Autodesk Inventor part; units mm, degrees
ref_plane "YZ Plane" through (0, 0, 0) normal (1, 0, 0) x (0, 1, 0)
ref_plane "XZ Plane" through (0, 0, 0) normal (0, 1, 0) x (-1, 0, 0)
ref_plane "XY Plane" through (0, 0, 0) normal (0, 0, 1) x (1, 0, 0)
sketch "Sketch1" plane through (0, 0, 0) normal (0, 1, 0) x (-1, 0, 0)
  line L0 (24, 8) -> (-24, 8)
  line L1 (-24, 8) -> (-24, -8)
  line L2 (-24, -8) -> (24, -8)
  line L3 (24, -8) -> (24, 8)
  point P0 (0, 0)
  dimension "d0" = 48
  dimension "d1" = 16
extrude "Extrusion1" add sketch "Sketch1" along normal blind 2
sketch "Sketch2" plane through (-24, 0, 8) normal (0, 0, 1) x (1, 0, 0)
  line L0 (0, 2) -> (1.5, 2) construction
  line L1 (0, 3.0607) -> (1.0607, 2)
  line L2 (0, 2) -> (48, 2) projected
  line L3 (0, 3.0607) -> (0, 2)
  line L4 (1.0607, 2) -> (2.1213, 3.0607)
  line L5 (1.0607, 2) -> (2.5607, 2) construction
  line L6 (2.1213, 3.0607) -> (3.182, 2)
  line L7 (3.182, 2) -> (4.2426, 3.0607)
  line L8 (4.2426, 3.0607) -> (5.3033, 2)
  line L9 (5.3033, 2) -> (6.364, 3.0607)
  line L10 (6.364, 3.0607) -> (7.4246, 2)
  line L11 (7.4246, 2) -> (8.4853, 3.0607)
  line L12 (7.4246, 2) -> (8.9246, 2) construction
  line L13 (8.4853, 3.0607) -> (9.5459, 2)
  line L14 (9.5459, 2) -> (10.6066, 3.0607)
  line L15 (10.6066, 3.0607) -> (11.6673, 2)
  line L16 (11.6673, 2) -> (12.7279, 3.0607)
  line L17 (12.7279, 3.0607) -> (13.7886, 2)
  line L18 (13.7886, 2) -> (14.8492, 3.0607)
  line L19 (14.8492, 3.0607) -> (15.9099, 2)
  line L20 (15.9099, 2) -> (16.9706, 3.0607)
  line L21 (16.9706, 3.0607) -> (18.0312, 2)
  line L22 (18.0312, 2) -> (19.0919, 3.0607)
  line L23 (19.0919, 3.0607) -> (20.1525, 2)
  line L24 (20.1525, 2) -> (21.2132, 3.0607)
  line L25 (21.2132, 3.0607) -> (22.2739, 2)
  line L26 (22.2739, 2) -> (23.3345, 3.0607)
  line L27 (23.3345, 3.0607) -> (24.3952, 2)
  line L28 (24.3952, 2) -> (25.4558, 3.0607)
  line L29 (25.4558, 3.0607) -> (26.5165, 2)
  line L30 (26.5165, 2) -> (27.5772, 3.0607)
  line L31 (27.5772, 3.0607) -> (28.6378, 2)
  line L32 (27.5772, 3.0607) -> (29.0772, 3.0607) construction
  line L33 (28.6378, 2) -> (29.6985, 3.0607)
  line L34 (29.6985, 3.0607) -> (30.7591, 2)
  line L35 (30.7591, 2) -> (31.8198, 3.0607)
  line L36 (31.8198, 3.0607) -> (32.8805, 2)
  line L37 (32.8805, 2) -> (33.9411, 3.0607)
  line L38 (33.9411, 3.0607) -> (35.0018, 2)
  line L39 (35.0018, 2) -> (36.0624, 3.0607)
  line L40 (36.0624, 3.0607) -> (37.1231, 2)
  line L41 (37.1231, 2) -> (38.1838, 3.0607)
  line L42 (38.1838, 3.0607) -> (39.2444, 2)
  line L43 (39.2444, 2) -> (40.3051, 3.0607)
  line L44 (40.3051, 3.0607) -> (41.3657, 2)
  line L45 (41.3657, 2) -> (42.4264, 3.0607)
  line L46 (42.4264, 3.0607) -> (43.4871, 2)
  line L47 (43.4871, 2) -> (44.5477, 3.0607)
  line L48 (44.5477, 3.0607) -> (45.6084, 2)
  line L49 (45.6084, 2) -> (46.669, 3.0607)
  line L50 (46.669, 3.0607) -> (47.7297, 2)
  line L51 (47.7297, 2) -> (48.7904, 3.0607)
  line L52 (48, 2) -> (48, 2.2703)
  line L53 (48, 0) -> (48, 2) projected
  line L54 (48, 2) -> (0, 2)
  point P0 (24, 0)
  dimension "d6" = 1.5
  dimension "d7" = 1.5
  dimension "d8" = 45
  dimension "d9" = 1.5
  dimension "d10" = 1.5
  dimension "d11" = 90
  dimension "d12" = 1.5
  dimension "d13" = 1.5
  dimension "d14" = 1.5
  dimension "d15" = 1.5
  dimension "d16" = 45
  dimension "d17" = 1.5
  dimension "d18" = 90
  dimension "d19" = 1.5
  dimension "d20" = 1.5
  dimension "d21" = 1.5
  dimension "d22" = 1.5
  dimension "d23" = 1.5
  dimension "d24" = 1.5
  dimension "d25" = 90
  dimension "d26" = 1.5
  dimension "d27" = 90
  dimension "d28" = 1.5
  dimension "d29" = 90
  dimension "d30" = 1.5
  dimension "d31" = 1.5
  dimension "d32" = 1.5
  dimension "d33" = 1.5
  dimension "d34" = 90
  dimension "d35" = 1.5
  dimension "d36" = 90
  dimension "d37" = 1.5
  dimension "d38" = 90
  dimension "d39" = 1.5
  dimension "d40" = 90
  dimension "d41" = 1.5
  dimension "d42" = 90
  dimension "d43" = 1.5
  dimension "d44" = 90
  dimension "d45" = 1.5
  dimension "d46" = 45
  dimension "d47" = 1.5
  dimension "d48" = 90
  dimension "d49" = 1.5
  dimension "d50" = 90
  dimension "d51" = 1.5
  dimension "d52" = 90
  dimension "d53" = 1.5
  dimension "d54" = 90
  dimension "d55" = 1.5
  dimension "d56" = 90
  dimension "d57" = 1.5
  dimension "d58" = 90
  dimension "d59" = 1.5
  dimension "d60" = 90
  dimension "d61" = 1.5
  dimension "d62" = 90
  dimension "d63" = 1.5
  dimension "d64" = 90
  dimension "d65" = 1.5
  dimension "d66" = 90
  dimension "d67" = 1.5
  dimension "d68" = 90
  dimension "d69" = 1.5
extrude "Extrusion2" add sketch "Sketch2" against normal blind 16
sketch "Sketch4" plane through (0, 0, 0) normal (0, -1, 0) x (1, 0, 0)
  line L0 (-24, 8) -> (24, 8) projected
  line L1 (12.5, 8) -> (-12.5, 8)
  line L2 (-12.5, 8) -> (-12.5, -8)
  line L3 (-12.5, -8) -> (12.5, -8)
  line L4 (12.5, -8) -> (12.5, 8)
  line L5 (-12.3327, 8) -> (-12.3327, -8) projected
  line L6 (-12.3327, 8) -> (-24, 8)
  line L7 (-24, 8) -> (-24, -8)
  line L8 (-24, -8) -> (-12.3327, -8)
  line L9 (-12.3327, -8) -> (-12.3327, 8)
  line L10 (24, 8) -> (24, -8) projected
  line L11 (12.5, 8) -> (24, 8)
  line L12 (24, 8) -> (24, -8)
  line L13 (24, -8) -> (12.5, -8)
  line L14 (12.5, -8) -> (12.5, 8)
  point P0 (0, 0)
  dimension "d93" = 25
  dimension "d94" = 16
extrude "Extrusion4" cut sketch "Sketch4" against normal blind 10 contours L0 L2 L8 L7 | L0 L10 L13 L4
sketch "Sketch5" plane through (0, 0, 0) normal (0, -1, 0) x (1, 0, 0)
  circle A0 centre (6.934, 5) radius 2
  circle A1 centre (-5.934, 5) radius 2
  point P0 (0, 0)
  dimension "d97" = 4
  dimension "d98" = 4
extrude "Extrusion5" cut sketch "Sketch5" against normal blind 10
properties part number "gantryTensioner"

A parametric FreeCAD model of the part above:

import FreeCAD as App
import Part
import Sketcher

V = App.Vector

doc = App.newDocument("Part")
body = doc.addObject("PartDesign::Body", "Body")

# Sketch on XZ plane
sketch1 = body.newObject("Sketcher::SketchObject", "Sketch")
sketch1.AttachmentSupport = (doc.getObject("XZ_Plane"), [""])
sketch1.MapMode = "FlatFace"
sketch1.addGeometry(Part.LineSegment(V(-24, -8, 0), V(-24, 8, 0)), False)
sketch1.addGeometry(Part.LineSegment(V(-24, 8, 0), V(24, 8, 0)), False)
sketch1.addGeometry(Part.LineSegment(V(24, 8, 0), V(24, -8, 0)), False)
sketch1.addGeometry(Part.LineSegment(V(24, -8, 0), V(-24, -8, 0)), False)
sketch1.addConstraint(Sketcher.Constraint("Coincident", 0, 2, 1, 1))
sketch1.addConstraint(Sketcher.Constraint("Coincident", 1, 2, 2, 1))
sketch1.addConstraint(Sketcher.Constraint("Coincident", 2, 2, 3, 1))
sketch1.addConstraint(Sketcher.Constraint("Coincident", 3, 2, 0, 1))
sketch1.addConstraint(Sketcher.Constraint("Vertical", 0))
sketch1.addConstraint(Sketcher.Constraint("Horizontal", 1))
sketch1.addConstraint(Sketcher.Constraint("Vertical", 2))
sketch1.addConstraint(Sketcher.Constraint("Horizontal", 3))
sketch1.addConstraint(Sketcher.Constraint("Symmetric", 0, 2, 2, 2, -1, 1))
sketch1.addConstraint(Sketcher.Constraint("DistanceX", 1, 1, 1, 2, 48.0))
sketch1.addConstraint(Sketcher.Constraint("DistanceY", 0, 1, 0, 2, 16.0))
pad1 = body.newObject("PartDesign::Pad", "Pad")
pad1.Profile = sketch1
pad1.Length = 2
pad1.Reversed = True

# Sketch on XY plane
sketch2 = body.newObject("Sketcher::SketchObject", "Sketch001")
sketch2.AttachmentSupport = (doc.getObject("XY_Plane"), [""])
sketch2.MapMode = "FlatFace"
sketch2.AttachmentOffset = App.Placement(V(0, 0, 8), App.Rotation())
sketch2.addGeometry(Part.LineSegment(V(24, 2.2703, 0), V(23.7297, 2, 0)), False)
sketch2.addGeometry(Part.LineSegment(V(23.7297, 2, 0), V(24, 2, 0)), False)
sketch2.addGeometry(Part.LineSegment(V(24, 2, 0), V(24, 2.2703, 0)), False)
sketch2.addGeometry(Part.LineSegment(V(22.669, 3.0607, 0), V(21.6084, 2, 0)), False)
sketch2.addGeometry(Part.LineSegment(V(21.6084, 2, 0), V(23.7297, 2, 0)), False)
sketch2.addGeometry(Part.LineSegment(V(23.7297, 2, 0), V(22.669, 3.0607, 0)), False)
sketch2.addGeometry(Part.LineSegment(V(20.5477, 3.0607, 0), V(19.4871, 2, 0)), False)
sketch2.addGeometry(Part.LineSegment(V(19.4871, 2, 0), V(21.6084, 2, 0)), False)
sketch2.addGeometry(Part.LineSegment(V(21.6084, 2, 0), V(20.5477, 3.0607, 0)), False)
sketch2.addGeometry(Part.LineSegment(V(18.4264, 3.0607, 0), V(17.3657, 2, 0)), False)
sketch2.addGeometry(Part.LineSegment(V(17.3657, 2, 0), V(19.4871, 2, 0)), False)
sketch2.addGeometry(Part.LineSegment(V(19.4871, 2, 0), V(18.4264, 3.0607, 0)), False)
sketch2.addGeometry(Part.LineSegment(V(16.3051, 3.0607, 0), V(15.2444, 2, 0)), False)
sketch2.addGeometry(Part.LineSegment(V(15.2444, 2, 0), V(17.3657, 2, 0)), False)
sketch2.addGeometry(Part.LineSegment(V(17.3657, 2, 0), V(16.3051, 3.0607, 0)), False)
sketch2.addGeometry(Part.LineSegment(V(14.1838, 3.0607, 0), V(13.1231, 2, 0)), False)
sketch2.addGeometry(Part.LineSegment(V(13.1231, 2, 0), V(15.2444, 2, 0)), False)
sketch2.addGeometry(Part.LineSegment(V(15.2444, 2, 0), V(14.1838, 3.0607, 0)), False)
sketch2.addGeometry(Part.LineSegment(V(12.0624, 3.0607, 0), V(11.0018, 2, 0)), False)
sketch2.addGeometry(Part.LineSegment(V(11.0018, 2, 0), V(13.1231, 2, 0)), False)
sketch2.addGeometry(Part.LineSegment(V(13.1231, 2, 0), V(12.0624, 3.0607, 0)), False)
sketch2.addGeometry(Part.LineSegment(V(9.9411, 3.0607, 0), V(8.8805, 2, 0)), False)
sketch2.addGeometry(Part.LineSegment(V(8.8805, 2, 0), V(11.0018, 2, 0)), False)
sketch2.addGeometry(Part.LineSegment(V(11.0018, 2, 0), V(9.9411, 3.0607, 0)), False)
sketch2.addGeometry(Part.LineSegment(V(7.8198, 3.0607, 0), V(6.7591, 2, 0)), False)
sketch2.addGeometry(Part.LineSegment(V(6.7591, 2, 0), V(8.8805, 2, 0)), False)
sketch2.addGeometry(Part.LineSegment(V(8.8805, 2, 0), V(7.8198, 3.0607, 0)), False)
sketch2.addGeometry(Part.LineSegment(V(5.6985, 3.0607, 0), V(4.6378, 2, 0)), False)
sketch2.addGeometry(Part.LineSegment(V(4.6378, 2, 0), V(6.7591, 2, 0)), False)
sketch2.addGeometry(Part.LineSegment(V(6.7591, 2, 0), V(5.6985, 3.0607, 0)), False)
sketch2.addGeometry(Part.LineSegment(V(3.5772, 3.0607, 0), V(2.5165, 2, 0)), False)
sketch2.addGeometry(Part.LineSegment(V(2.5165, 2, 0), V(4.6378, 2, 0)), False)
sketch2.addGeometry(Part.LineSegment(V(4.6378, 2, 0), V(3.5772, 3.0607, 0)), False)
sketch2.addGeometry(Part.LineSegment(V(1.4558, 3.0607, 0), V(0.3952, 2, 0)), False)
sketch2.addGeometry(Part.LineSegment(V(0.3952, 2, 0), V(2.5165, 2, 0)), False)
sketch2.addGeometry(Part.LineSegment(V(2.5165, 2, 0), V(1.4558, 3.0607, 0)), False)
sketch2.addGeometry(Part.LineSegment(V(-0.6655, 3.0607, 0), V(-1.7261, 2, 0)), False)
sketch2.addGeometry(Part.LineSegment(V(-1.7261, 2, 0), V(0.3952, 2, 0)), False)
sketch2.addGeometry(Part.LineSegment(V(0.3952, 2, 0), V(-0.6655, 3.0607, 0)), False)
sketch2.addGeometry(Part.LineSegment(V(-2.7868, 3.0607, 0), V(-3.8475, 2, 0)), False)
sketch2.addGeometry(Part.LineSegment(V(-3.8475, 2, 0), V(-1.7261, 2, 0)), False)
sketch2.addGeometry(Part.LineSegment(V(-1.7261, 2, 0), V(-2.7868, 3.0607, 0)), False)
sketch2.addGeometry(Part.LineSegment(V(-4.9081, 3.0607, 0), V(-5.9688, 2, 0)), False)
sketch2.addGeometry(Part.LineSegment(V(-5.9688, 2, 0), V(-3.8475, 2, 0)), False)
sketch2.addGeometry(Part.LineSegment(V(-3.8475, 2, 0), V(-4.9081, 3.0607, 0)), False)
sketch2.addGeometry(Part.LineSegment(V(-7.0294, 3.0607, 0), V(-8.0901, 2, 0)), False)
sketch2.addGeometry(Part.LineSegment(V(-8.0901, 2, 0), V(-5.9688, 2, 0)), False)
sketch2.addGeometry(Part.LineSegment(V(-5.9688, 2, 0), V(-7.0294, 3.0607, 0)), False)
sketch2.addGeometry(Part.LineSegment(V(-9.1508, 3.0607, 0), V(-10.2114, 2, 0)), False)
sketch2.addGeometry(Part.LineSegment(V(-10.2114, 2, 0), V(-8.0901, 2, 0)), False)
sketch2.addGeometry(Part.LineSegment(V(-8.0901, 2, 0), V(-9.1508, 3.0607, 0)), False)
sketch2.addGeometry(Part.LineSegment(V(-11.2721, 3.0607, 0), V(-12.3327, 2, 0)), False)
sketch2.addGeometry(Part.LineSegment(V(-12.3327, 2, 0), V(-10.2114, 2, 0)), False)
sketch2.addGeometry(Part.LineSegment(V(-10.2114, 2, 0), V(-11.2721, 3.0607, 0)), False)
sketch2.addGeometry(Part.LineSegment(V(-13.3934, 3.0607, 0), V(-14.4541, 2, 0)), False)
sketch2.addGeometry(Part.LineSegment(V(-14.4541, 2, 0), V(-12.3327, 2, 0)), False)
sketch2.addGeometry(Part.LineSegment(V(-12.3327, 2, 0), V(-13.3934, 3.0607, 0)), False)
sketch2.addGeometry(Part.LineSegment(V(-15.5147, 3.0607, 0), V(-16.5754, 2, 0)), False)
sketch2.addGeometry(Part.LineSegment(V(-16.5754, 2, 0), V(-14.4541, 2, 0)), False)
sketch2.addGeometry(Part.LineSegment(V(-14.4541, 2, 0), V(-15.5147, 3.0607, 0)), False)
sketch2.addGeometry(Part.LineSegment(V(-17.636, 3.0607, 0), V(-18.6967, 2, 0)), False)
sketch2.addGeometry(Part.LineSegment(V(-18.6967, 2, 0), V(-16.5754, 2, 0)), False)
sketch2.addGeometry(Part.LineSegment(V(-16.5754, 2, 0), V(-17.636, 3.0607, 0)), False)
sketch2.addGeometry(Part.LineSegment(V(-19.7574, 3.0607, 0), V(-20.818, 2, 0)), False)
sketch2.addGeometry(Part.LineSegment(V(-20.818, 2, 0), V(-18.6967, 2, 0)), False)
sketch2.addGeometry(Part.LineSegment(V(-18.6967, 2, 0), V(-19.7574, 3.0607, 0)), False)
sketch2.addGeometry(Part.LineSegment(V(-21.8787, 3.0607, 0), V(-22.9393, 2, 0)), False)
sketch2.addGeometry(Part.LineSegment(V(-22.9393, 2, 0), V(-20.818, 2, 0)), False)
sketch2.addGeometry(Part.LineSegment(V(-20.818, 2, 0), V(-21.8787, 3.0607, 0)), False)
sketch2.addGeometry(Part.LineSegment(V(-22.9393, 2, 0), V(-24, 3.0607, 0)), False)
sketch2.addGeometry(Part.LineSegment(V(-24, 3.0607, 0), V(-24, 2, 0)), False)
sketch2.addGeometry(Part.LineSegment(V(-24, 2, 0), V(-22.9393, 2, 0)), False)
sketch2.addConstraint(Sketcher.Constraint("Coincident", 0, 2, 1, 1))
sketch2.addConstraint(Sketcher.Constraint("Coincident", 1, 2, 2, 1))
sketch2.addConstraint(Sketcher.Constraint("Coincident", 2, 2, 0, 1))
sketch2.addConstraint(Sketcher.Constraint("Coincident", 3, 2, 4, 1))
sketch2.addConstraint(Sketcher.Constraint("Coincident", 4, 2, 5, 1))
sketch2.addConstraint(Sketcher.Constraint("Coincident", 5, 2, 3, 1))
sketch2.addConstraint(Sketcher.Constraint("Coincident", 6, 2, 7, 1))
sketch2.addConstraint(Sketcher.Constraint("Coincident", 7, 2, 8, 1))
sketch2.addConstraint(Sketcher.Constraint("Coincident", 8, 2, 6, 1))
sketch2.addConstraint(Sketcher.Constraint("Coincident", 9, 2, 10, 1))
sketch2.addConstraint(Sketcher.Constraint("Coincident", 10, 2, 11, 1))
sketch2.addConstraint(Sketcher.Constraint("Coincident", 11, 2, 9, 1))
sketch2.addConstraint(Sketcher.Constraint("Coincident", 12, 2, 13, 1))
sketch2.addConstraint(Sketcher.Constraint("Coincident", 13, 2, 14, 1))
sketch2.addConstraint(Sketcher.Constraint("Coincident", 14, 2, 12, 1))
sketch2.addConstraint(Sketcher.Constraint("Coincident", 15, 2, 16, 1))
sketch2.addConstraint(Sketcher.Constraint("Coincident", 16, 2, 17, 1))
sketch2.addConstraint(Sketcher.Constraint("Coincident", 17, 2, 15, 1))
sketch2.addConstraint(Sketcher.Constraint("Coincident", 18, 2, 19, 1))
sketch2.addConstraint(Sketcher.Constraint("Coincident", 19, 2, 20, 1))
sketch2.addConstraint(Sketcher.Constraint("Coincident", 20, 2, 18, 1))
sketch2.addConstraint(Sketcher.Constraint("Coincident", 21, 2, 22, 1))
sketch2.addConstraint(Sketcher.Constraint("Coincident", 22, 2, 23, 1))
sketch2.addConstraint(Sketcher.Constraint("Coincident", 23, 2, 21, 1))
sketch2.addConstraint(Sketcher.Constraint("Coincident", 24, 2, 25, 1))
sketch2.addConstraint(Sketcher.Constraint("Coincident", 25, 2, 26, 1))
sketch2.addConstraint(Sketcher.Constraint("Coincident", 26, 2, 24, 1))
sketch2.addConstraint(Sketcher.Constraint("Coincident", 27, 2, 28, 1))
sketch2.addConstraint(Sketcher.Constraint("Coincident", 28, 2, 29, 1))
sketch2.addConstraint(Sketcher.Constraint("Coincident", 29, 2, 27, 1))
sketch2.addConstraint(Sketcher.Constraint("Coincident", 30, 2, 31, 1))
sketch2.addConstraint(Sketcher.Constraint("Coincident", 31, 2, 32, 1))
sketch2.addConstraint(Sketcher.Constraint("Coincident", 32, 2, 30, 1))
sketch2.addConstraint(Sketcher.Constraint("Coincident", 33, 2, 34, 1))
sketch2.addConstraint(Sketcher.Constraint("Coincident", 34, 2, 35, 1))
sketch2.addConstraint(Sketcher.Constraint("Coincident", 35, 2, 33, 1))
sketch2.addConstraint(Sketcher.Constraint("Coincident", 36, 2, 37, 1))
sketch2.addConstraint(Sketcher.Constraint("Coincident", 37, 2, 38, 1))
sketch2.addConstraint(Sketcher.Constraint("Coincident", 38, 2, 36, 1))
sketch2.addConstraint(Sketcher.Constraint("Coincident", 39, 2, 40, 1))
sketch2.addConstraint(Sketcher.Constraint("Coincident", 40, 2, 41, 1))
sketch2.addConstraint(Sketcher.Constraint("Coincident", 41, 2, 39, 1))
sketch2.addConstraint(Sketcher.Constraint("Coincident", 42, 2, 43, 1))
sketch2.addConstraint(Sketcher.Constraint("Coincident", 43, 2, 44, 1))
sketch2.addConstraint(Sketcher.Constraint("Coincident", 44, 2, 42, 1))
sketch2.addConstraint(Sketcher.Constraint("Coincident", 45, 2, 46, 1))
sketch2.addConstraint(Sketcher.Constraint("Coincident", 46, 2, 47, 1))
sketch2.addConstraint(Sketcher.Constraint("Coincident", 47, 2, 45, 1))
sketch2.addConstraint(Sketcher.Constraint("Coincident", 48, 2, 49, 1))
sketch2.addConstraint(Sketcher.Constraint("Coincident", 49, 2, 50, 1))
sketch2.addConstraint(Sketcher.Constraint("Coincident", 50, 2, 48, 1))
sketch2.addConstraint(Sketcher.Constraint("Coincident", 51, 2, 52, 1))
sketch2.addConstraint(Sketcher.Constraint("Coincident", 52, 2, 53, 1))
sketch2.addConstraint(Sketcher.Constraint("Coincident", 53, 2, 51, 1))
sketch2.addConstraint(Sketcher.Constraint("Coincident", 54, 2, 55, 1))
sketch2.addConstraint(Sketcher.Constraint("Coincident", 55, 2, 56, 1))
sketch2.addConstraint(Sketcher.Constraint("Coincident", 56, 2, 54, 1))
sketch2.addConstraint(Sketcher.Constraint("Coincident", 57, 2, 58, 1))
sketch2.addConstraint(Sketcher.Constraint("Coincident", 58, 2, 59, 1))
sketch2.addConstraint(Sketcher.Constraint("Coincident", 59, 2, 57, 1))
sketch2.addConstraint(Sketcher.Constraint("Coincident", 60, 2, 61, 1))
sketch2.addConstraint(Sketcher.Constraint("Coincident", 61, 2, 62, 1))
sketch2.addConstraint(Sketcher.Constraint("Coincident", 62, 2, 60, 1))
sketch2.addConstraint(Sketcher.Constraint("Coincident", 63, 2, 64, 1))
sketch2.addConstraint(Sketcher.Constraint("Coincident", 64, 2, 65, 1))
sketch2.addConstraint(Sketcher.Constraint("Coincident", 65, 2, 63, 1))
sketch2.addConstraint(Sketcher.Constraint("Coincident", 66, 2, 67, 1))
sketch2.addConstraint(Sketcher.Constraint("Coincident", 67, 2, 68, 1))
sketch2.addConstraint(Sketcher.Constraint("Coincident", 68, 2, 66, 1))
sketch2.addConstraint(Sketcher.Constraint("Coincident", 69, 2, 70, 1))
sketch2.addConstraint(Sketcher.Constraint("Coincident", 70, 2, 71, 1))
sketch2.addConstraint(Sketcher.Constraint("Coincident", 71, 2, 69, 1))
sketch2.addConstraint(Sketcher.Constraint("Horizontal", 1))
sketch2.addConstraint(Sketcher.Constraint("Vertical", 2))
sketch2.addConstraint(Sketcher.Constraint("Horizontal", 4))
sketch2.addConstraint(Sketcher.Constraint("Horizontal", 7))
sketch2.addConstraint(Sketcher.Constraint("Horizontal", 10))
sketch2.addConstraint(Sketcher.Constraint("Horizontal", 13))
sketch2.addConstraint(Sketcher.Constraint("Horizontal", 16))
sketch2.addConstraint(Sketcher.Constraint("Horizontal", 19))
sketch2.addConstraint(Sketcher.Constraint("Horizontal", 22))
sketch2.addConstraint(Sketcher.Constraint("Horizontal", 25))
sketch2.addConstraint(Sketcher.Constraint("Horizontal", 28))
sketch2.addConstraint(Sketcher.Constraint("Horizontal", 31))
sketch2.addConstraint(Sketcher.Constraint("Horizontal", 34))
sketch2.addConstraint(Sketcher.Constraint("Horizontal", 37))
sketch2.addConstraint(Sketcher.Constraint("Horizontal", 40))
sketch2.addConstraint(Sketcher.Constraint("Horizontal", 43))
sketch2.addConstraint(Sketcher.Constraint("Horizontal", 46))
sketch2.addConstraint(Sketcher.Constraint("Horizontal", 49))
sketch2.addConstraint(Sketcher.Constraint("Horizontal", 52))
sketch2.addConstraint(Sketcher.Constraint("Horizontal", 55))
sketch2.addConstraint(Sketcher.Constraint("Horizontal", 58))
sketch2.addConstraint(Sketcher.Constraint("Horizontal", 61))
sketch2.addConstraint(Sketcher.Constraint("Horizontal", 64))
sketch2.addConstraint(Sketcher.Constraint("Horizontal", 67))
sketch2.addConstraint(Sketcher.Constraint("Vertical", 70))
sketch2.addConstraint(Sketcher.Constraint("Horizontal", 71))
sketch2.addConstraint(Sketcher.Constraint("Coincident", 4, 2, 0, 2))
sketch2.addConstraint(Sketcher.Constraint("Coincident", 7, 2, 3, 2))
sketch2.addConstraint(Sketcher.Constraint("Coincident", 10, 2, 6, 2))
sketch2.addConstraint(Sketcher.Constraint("Coincident", 13, 2, 9, 2))
sketch2.addConstraint(Sketcher.Constraint("Coincident", 16, 2, 12, 2))
sketch2.addConstraint(Sketcher.Constraint("Coincident", 19, 2, 15, 2))
sketch2.addConstraint(Sketcher.Constraint("Coincident", 22, 2, 18, 2))
sketch2.addConstraint(Sketcher.Constraint("Coincident", 25, 2, 21, 2))
sketch2.addConstraint(Sketcher.Constraint("Coincident", 28, 2, 24, 2))
sketch2.addConstraint(Sketcher.Constraint("Coincident", 31, 2, 27, 2))
sketch2.addConstraint(Sketcher.Constraint("Coincident", 34, 2, 30, 2))
sketch2.addConstraint(Sketcher.Constraint("Coincident", 37, 2, 33, 2))
sketch2.addConstraint(Sketcher.Constraint("Coincident", 40, 2, 36, 2))
sketch2.addConstraint(Sketcher.Constraint("Coincident", 43, 2, 39, 2))
sketch2.addConstraint(Sketcher.Constraint("Coincident", 46, 2, 42, 2))
sketch2.addConstraint(Sketcher.Constraint("Coincident", 49, 2, 45, 2))
sketch2.addConstraint(Sketcher.Constraint("Coincident", 52, 2, 48, 2))
sketch2.addConstraint(Sketcher.Constraint("Coincident", 55, 2, 51, 2))
sketch2.addConstraint(Sketcher.Constraint("Coincident", 58, 2, 54, 2))
sketch2.addConstraint(Sketcher.Constraint("Coincident", 61, 2, 57, 2))
sketch2.addConstraint(Sketcher.Constraint("Coincident", 64, 2, 60, 2))
sketch2.addConstraint(Sketcher.Constraint("Coincident", 67, 2, 63, 2))
sketch2.addConstraint(Sketcher.Constraint("Coincident", 71, 2, 66, 2))
sketch2.addConstraint(Sketcher.Constraint("Parallel", 0, 3))
sketch2.addConstraint(Sketcher.Constraint("Perpendicular", 3, 5))
sketch2.addConstraint(Sketcher.Constraint("Perpendicular", 5, 6))
sketch2.addConstraint(Sketcher.Constraint("Perpendicular", 6, 8))
sketch2.addConstraint(Sketcher.Constraint("Perpendicular", 8, 9))
sketch2.addConstraint(Sketcher.Constraint("Perpendicular", 9, 11))
sketch2.addConstraint(Sketcher.Constraint("Perpendicular", 11, 12))
sketch2.addConstraint(Sketcher.Constraint("Perpendicular", 12, 14))
sketch2.addConstraint(Sketcher.Constraint("Perpendicular", 14, 15))
sketch2.addConstraint(Sketcher.Constraint("Perpendicular", 15, 17))
sketch2.addConstraint(Sketcher.Constraint("Perpendicular", 17, 18))
sketch2.addConstraint(Sketcher.Constraint("Perpendicular", 18, 20))
sketch2.addConstraint(Sketcher.Constraint("Perpendicular", 20, 21))
sketch2.addConstraint(Sketcher.Constraint("Perpendicular", 21, 23))
sketch2.addConstraint(Sketcher.Constraint("Perpendicular", 23, 24))
sketch2.addConstraint(Sketcher.Constraint("Perpendicular", 24, 26))
sketch2.addConstraint(Sketcher.Constraint("Perpendicular", 26, 27))
sketch2.addConstraint(Sketcher.Constraint("Perpendicular", 27, 29))
sketch2.addConstraint(Sketcher.Constraint("Perpendicular", 29, 30))
sketch2.addConstraint(Sketcher.Constraint("Perpendicular", 30, 32))
sketch2.addConstraint(Sketcher.Constraint("Perpendicular", 32, 33))
sketch2.addConstraint(Sketcher.Constraint("Perpendicular", 33, 35))
sketch2.addConstraint(Sketcher.Constraint("Perpendicular", 35, 36))
sketch2.addConstraint(Sketcher.Constraint("Perpendicular", 36, 38))
sketch2.addConstraint(Sketcher.Constraint("Perpendicular", 38, 39))
sketch2.addConstraint(Sketcher.Constraint("Perpendicular", 39, 41))
sketch2.addConstraint(Sketcher.Constraint("Perpendicular", 41, 42))
sketch2.addConstraint(Sketcher.Constraint("Perpendicular", 42, 44))
sketch2.addConstraint(Sketcher.Constraint("Perpendicular", 44, 45))
sketch2.addConstraint(Sketcher.Constraint("Perpendicular", 45, 47))
sketch2.addConstraint(Sketcher.Constraint("Perpendicular", 47, 48))
sketch2.addConstraint(Sketcher.Constraint("Perpendicular", 48, 50))
sketch2.addConstraint(Sketcher.Constraint("Perpendicular", 50, 51))
sketch2.addConstraint(Sketcher.Constraint("Perpendicular", 51, 53))
sketch2.addConstraint(Sketcher.Constraint("Perpendicular", 53, 54))
sketch2.addConstraint(Sketcher.Constraint("Perpendicular", 54, 56))
sketch2.addConstraint(Sketcher.Constraint("Perpendicular", 56, 57))
sketch2.addConstraint(Sketcher.Constraint("Perpendicular", 57, 59))
sketch2.addConstraint(Sketcher.Constraint("Perpendicular", 59, 60))
sketch2.addConstraint(Sketcher.Constraint("Perpendicular", 60, 62))
sketch2.addConstraint(Sketcher.Constraint("Perpendicular", 62, 63))
sketch2.addConstraint(Sketcher.Constraint("Perpendicular", 63, 65))
sketch2.addConstraint(Sketcher.Constraint("Perpendicular", 65, 66))
sketch2.addConstraint(Sketcher.Constraint("Perpendicular", 66, 68))
sketch2.addConstraint(Sketcher.Constraint("Parallel", 68, 69))
sketch2.addConstraint(Sketcher.Constraint("Horizontal", 5, 2, 8, 2))
sketch2.addConstraint(Sketcher.Constraint("Horizontal", 8, 2, 11, 2))
sketch2.addConstraint(Sketcher.Constraint("Horizontal", 11, 2, 14, 2))
sketch2.addConstraint(Sketcher.Constraint("Horizontal", 14, 2, 17, 2))
sketch2.addConstraint(Sketcher.Constraint("Horizontal", 17, 2, 20, 2))
sketch2.addConstraint(Sketcher.Constraint("Horizontal", 20, 2, 23, 2))
sketch2.addConstraint(Sketcher.Constraint("Horizontal", 23, 2, 26, 2))
sketch2.addConstraint(Sketcher.Constraint("Horizontal", 26, 2, 29, 2))
sketch2.addConstraint(Sketcher.Constraint("Horizontal", 29, 2, 32, 2))
sketch2.addConstraint(Sketcher.Constraint("Horizontal", 32, 2, 35, 2))
sketch2.addConstraint(Sketcher.Constraint("Horizontal", 35, 2, 38, 2))
sketch2.addConstraint(Sketcher.Constraint("Horizontal", 38, 2, 41, 2))
sketch2.addConstraint(Sketcher.Constraint("Horizontal", 41, 2, 44, 2))
sketch2.addConstraint(Sketcher.Constraint("Horizontal", 44, 2, 47, 2))
sketch2.addConstraint(Sketcher.Constraint("Horizontal", 47, 2, 50, 2))
sketch2.addConstraint(Sketcher.Constraint("Horizontal", 50, 2, 53, 2))
sketch2.addConstraint(Sketcher.Constraint("Horizontal", 53, 2, 56, 2))
sketch2.addConstraint(Sketcher.Constraint("Horizontal", 56, 2, 59, 2))
sketch2.addConstraint(Sketcher.Constraint("Horizontal", 59, 2, 62, 2))
sketch2.addConstraint(Sketcher.Constraint("Horizontal", 62, 2, 65, 2))
sketch2.addConstraint(Sketcher.Constraint("Horizontal", 65, 2, 68, 2))
sketch2.addConstraint(Sketcher.Constraint("Horizontal", 68, 2, 69, 2))
sketch2.addConstraint(Sketcher.Constraint("Equal", 1, 2))
sketch2.addConstraint(Sketcher.Constraint("Distance", 3, 1.5))
sketch2.addConstraint(Sketcher.Constraint("DistanceY", -1, 1, 0, 2, 2.0))
sketch2.addConstraint(Sketcher.Constraint("DistanceX", -1, 1, 1, 2, 24.0))
sketch2.addConstraint(Sketcher.Constraint("DistanceX", 69, 2, -1, 1, 24.0))
pad2 = body.newObject("PartDesign::Pad", "Pad001")
pad2.Profile = sketch2
pad2.Length = 16
pad2.Reversed = True

# Sketch on XZ plane
sketch3 = body.newObject("Sketcher::SketchObject", "Sketch002")
sketch3.AttachmentSupport = (doc.getObject("XZ_Plane"), [""])
sketch3.MapMode = "FlatFace"
sketch3.addGeometry(Part.LineSegment(V(-12.5, 8, 0), V(-24, 8, 0)), False)
sketch3.addGeometry(Part.LineSegment(V(-24, 8, 0), V(-24, -8, 0)), False)
sketch3.addGeometry(Part.LineSegment(V(-24, -8, 0), V(-12.5, -8, 0)), False)
sketch3.addGeometry(Part.LineSegment(V(-12.5, -8, 0), V(-12.5, 8, 0)), False)
sketch3.addGeometry(Part.LineSegment(V(24, 8, 0), V(12.5, 8, 0)), False)
sketch3.addGeometry(Part.LineSegment(V(12.5, 8, 0), V(12.5, -8, 0)), False)
sketch3.addGeometry(Part.LineSegment(V(12.5, -8, 0), V(24, -8, 0)), False)
sketch3.addGeometry(Part.LineSegment(V(24, -8, 0), V(24, 8, 0)), False)
sketch3.addConstraint(Sketcher.Constraint("Coincident", 0, 2, 1, 1))
sketch3.addConstraint(Sketcher.Constraint("Coincident", 1, 2, 2, 1))
sketch3.addConstraint(Sketcher.Constraint("Coincident", 2, 2, 3, 1))
sketch3.addConstraint(Sketcher.Constraint("Coincident", 3, 2, 0, 1))
sketch3.addConstraint(Sketcher.Constraint("Coincident", 4, 2, 5, 1))
sketch3.addConstraint(Sketcher.Constraint("Coincident", 5, 2, 6, 1))
sketch3.addConstraint(Sketcher.Constraint("Coincident", 6, 2, 7, 1))
sketch3.addConstraint(Sketcher.Constraint("Coincident", 7, 2, 4, 1))
sketch3.addConstraint(Sketcher.Constraint("Horizontal", 0))
sketch3.addConstraint(Sketcher.Constraint("Vertical", 1))
sketch3.addConstraint(Sketcher.Constraint("Horizontal", 2))
sketch3.addConstraint(Sketcher.Constraint("Vertical", 3))
sketch3.addConstraint(Sketcher.Constraint("Horizontal", 4))
sketch3.addConstraint(Sketcher.Constraint("Vertical", 5))
sketch3.addConstraint(Sketcher.Constraint("Horizontal", 6))
sketch3.addConstraint(Sketcher.Constraint("Vertical", 7))
sketch3.addConstraint(Sketcher.Constraint("Symmetric", 2, 2, 4, 2, -1, 1))
sketch3.addConstraint(Sketcher.Constraint("Symmetric", 0, 2, 6, 2, -1, 1))
sketch3.addConstraint(Sketcher.Constraint("Horizontal", 3, 2, 4, 2))
sketch3.addConstraint(Sketcher.Constraint("DistanceY", 1, 2, 1, 1, 16.0))
sketch3.addConstraint(Sketcher.Constraint("DistanceX", 3, 2, 4, 2, 25.0))
sketch3.addConstraint(Sketcher.Constraint("DistanceX", 0, 2, 0, 1, 11.5))
pocket1 = body.newObject("PartDesign::Pocket", "Pocket")
pocket1.Profile = sketch3
pocket1.Length = 10

# Sketch on XZ plane
sketch4 = body.newObject("Sketcher::SketchObject", "Sketch003")
sketch4.AttachmentSupport = (doc.getObject("XZ_Plane"), [""])
sketch4.MapMode = "FlatFace"
sketch4.addGeometry(Part.Circle(V(6.934, 5, 0), V(0, 0, 1), 2), False)
sketch4.addGeometry(Part.Circle(V(-5.934, 5, 0), V(0, 0, 1), 2), False)
sketch4.addConstraint(Sketcher.Constraint("Equal", 0, 1))
sketch4.addConstraint(Sketcher.Constraint("Horizontal", 0, 3, 1, 3))
sketch4.addConstraint(Sketcher.Constraint("Diameter", 0, 4.0))
sketch4.addConstraint(Sketcher.Constraint("DistanceY", -1, 1, 0, 3, 5.0))
sketch4.addConstraint(Sketcher.Constraint("DistanceX", -1, 1, 0, 3, 6.934))
sketch4.addConstraint(Sketcher.Constraint("DistanceX", 1, 3, -1, 1, 5.934))
pocket2 = body.newObject("PartDesign::Pocket", "Pocket001")
pocket2.Profile = sketch4
pocket2.Length = 10

doc.recompute()
